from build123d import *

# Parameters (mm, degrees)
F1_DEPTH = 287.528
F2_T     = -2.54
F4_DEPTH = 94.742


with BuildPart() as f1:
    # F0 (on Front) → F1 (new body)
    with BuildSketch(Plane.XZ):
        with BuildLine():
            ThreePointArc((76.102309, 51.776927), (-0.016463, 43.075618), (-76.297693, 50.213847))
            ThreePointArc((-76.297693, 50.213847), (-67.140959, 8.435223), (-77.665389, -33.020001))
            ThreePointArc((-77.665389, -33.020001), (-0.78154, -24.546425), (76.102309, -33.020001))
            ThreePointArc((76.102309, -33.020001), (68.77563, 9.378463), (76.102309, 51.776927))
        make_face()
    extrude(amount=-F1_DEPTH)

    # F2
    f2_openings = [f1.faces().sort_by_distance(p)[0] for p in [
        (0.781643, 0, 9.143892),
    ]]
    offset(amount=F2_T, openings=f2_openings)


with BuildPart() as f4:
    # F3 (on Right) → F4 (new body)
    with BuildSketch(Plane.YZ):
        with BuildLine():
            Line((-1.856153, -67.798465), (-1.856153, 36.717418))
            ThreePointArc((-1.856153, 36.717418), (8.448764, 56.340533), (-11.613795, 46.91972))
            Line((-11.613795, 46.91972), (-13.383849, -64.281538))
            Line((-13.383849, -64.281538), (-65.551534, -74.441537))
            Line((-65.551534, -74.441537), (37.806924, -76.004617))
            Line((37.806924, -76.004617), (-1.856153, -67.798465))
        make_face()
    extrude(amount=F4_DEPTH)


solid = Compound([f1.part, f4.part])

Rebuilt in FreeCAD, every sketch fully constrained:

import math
import FreeCAD as App
import Part
import Sketcher
Q = App.Units.Quantity


def faces_at(feature, points):
    """Names of the faces that lie closest to the given points."""
    faces = feature.Shape.Faces
    near = lambda p: min(range(len(faces)), key=lambda i: faces[i].distToShape(Part.Vertex(*p))[0])
    return sorted({f"Face{near(p) + 1}" for p in points})

doc = App.newDocument("Part")
params = doc.addObject("Spreadsheet::Sheet", "Params")
for row, (alias, value) in enumerate([
    ("pad1_length", "11.32 in"),
    ("thickness_wall", "0.1 in"),
    ("pad2_length", "3.73 in"),
], start=1):
    params.set(f"A{row}", alias)
    params.set(f"B{row}", "=" + value)
    params.setAlias(f"B{row}", alias)

body = doc.addObject("PartDesign::Body", "Body")

sketch1 = body.newObject("Sketcher::SketchObject", "Sketch")
sketch1.AttachmentSupport = (doc.getObject("XZ_Plane"), [""])
sketch1.MapMode = "FlatFace"
sketch1.addGeometry(Part.ArcOfCircle(Part.Circle(App.Vector(-4, 414, 0), App.Vector(0, 0, 1), 371), math.radians(-101), math.radians(-78)), False)
sketch1.addGeometry(Part.ArcOfCircle(Part.Circle(App.Vector(-160, 10, 0), App.Vector(0, 0, 1), 93), math.radians(-28), math.radians(26)), False)
sketch1.addGeometry(Part.ArcOfCircle(Part.Circle(App.Vector(-1, -378, 0), App.Vector(0, 0, 1), 353), math.radians(77), math.radians(103)), False)
sketch1.addGeometry(Part.ArcOfCircle(Part.Circle(App.Vector(195, 9, 0), App.Vector(0, 0, 1), 126), math.radians(160), math.radians(200)), False)
sketch1.addConstraint(Sketcher.Constraint("Coincident", 0, 1, 1, 2))
sketch1.addConstraint(Sketcher.Constraint("Coincident", 1, 1, 2, 2))
sketch1.addConstraint(Sketcher.Constraint("Coincident", 2, 1, 3, 2))
sketch1.addConstraint(Sketcher.Constraint("Coincident", 3, 1, 0, 2))
sketch1.addConstraint(Sketcher.Constraint("Horizontal", 1, 1, 2, 1))
sketch1.addConstraint(Sketcher.Constraint("Vertical", 2, 1, 3, 1))
sketch1.addConstraint(Sketcher.Constraint("DistanceX", 0, 1, 2, 1, Q("6.0000001 in")))
sketch1.addConstraint(Sketcher.Constraint("DistanceY", 1, 1, -1, 1, Q("1.3 in")))
sketch1.addConstraint(Sketcher.Constraint("Radius", 0, Q("370.558256 mm")))
sketch1.addConstraint(Sketcher.Constraint("Radius", 1, Q("92.934153 mm")))
sketch1.addConstraint(Sketcher.Constraint("Radius", 2, Q("353.034405 mm")))
sketch1.addConstraint(Sketcher.Constraint("Radius", 3, Q("126.340322 mm")))
sketch1.addConstraint(Sketcher.Constraint("DistanceY", 3, 3, 0, 3, Q("15.9148001 in")))
sketch1.addConstraint(Sketcher.Constraint("DistanceX", 1, 3, 0, 3, Q("156.245699 mm")))
sketch1.addConstraint(Sketcher.Constraint("DistanceX", 1, 1, 2, 1, Q("153.767698 mm")))
sketch1.addConstraint(Sketcher.Constraint("DistanceX", 0, 3, -1, 1, Q("3.816868 mm")))
pad1 = body.newObject("PartDesign::Pad", "Pad")
pad1.Profile = sketch1
pad1.setExpression("Length", "Params.pad1_length")
pad1.Reversed = True
doc.recompute()

thickness = body.newObject("PartDesign::Thickness", "Thickness")
thickness.Base = (pad1, faces_at(pad1, [(-0.782, 0, 9.378)]))
thickness.setExpression("Value", "Params.thickness_wall")
thickness.Reversed = True
thickness.Join = "Arc"
body2 = doc.addObject("PartDesign::Body", "Body001")

sketch2 = body2.newObject("Sketcher::SketchObject", "Sketch001")
sketch2.AttachmentSupport = (doc.getObject("YZ_Plane001"), [""])
sketch2.MapMode = "FlatFace"
sketch2.addGeometry(Part.LineSegment(App.Vector(-2, -68, 0), App.Vector(-2, 37, 0)), False)
sketch2.addGeometry(Part.ArcOfCircle(Part.Circle(App.Vector(0, 48, 0), App.Vector(0, 0, 1), 12), math.radians(-99), math.radians(187)), False)
sketch2.addGeometry(Part.LineSegment(App.Vector(-12, 47, 0), App.Vector(-13, -64, 0)), False)
sketch2.addGeometry(Part.LineSegment(App.Vector(-13, -64, 0), App.Vector(-66, -74, 0)), False)
sketch2.addGeometry(Part.LineSegment(App.Vector(-66, -74, 0), App.Vector(38, -76, 0)), False)
sketch2.addGeometry(Part.LineSegment(App.Vector(38, -76, 0), App.Vector(-2, -68, 0)), False)
sketch2.addConstraint(Sketcher.Constraint("Coincident", 0, 2, 1, 1))
sketch2.addConstraint(Sketcher.Constraint("Coincident", 1, 2, 2, 1))
sketch2.addConstraint(Sketcher.Constraint("Coincident", 2, 2, 3, 1))
sketch2.addConstraint(Sketcher.Constraint("Coincident", 3, 2, 4, 1))
sketch2.addConstraint(Sketcher.Constraint("Coincident", 4, 2, 5, 1))
sketch2.addConstraint(Sketcher.Constraint("Coincident", 5, 2, 0, 1))
sketch2.addConstraint(Sketcher.Constraint("Vertical", 0))
sketch2.addConstraint(Sketcher.Constraint("PointOnObject", 1, 3, -2))
sketch2.addConstraint(Sketcher.Constraint("DistanceY", -1, 1, 1, 3, Q("1.9000001 in")))
sketch2.addConstraint(Sketcher.Constraint("DistanceY", 3, 2, 2, 2, Q("0.4 in")))
sketch2.addConstraint(Sketcher.Constraint("Radius", 1, Q("11.690876 mm")))
sketch2.addConstraint(Sketcher.Constraint("Distance", 3, Q("53.14784 mm")))
sketch2.addConstraint(Sketcher.Constraint("DistanceY", 0, 1, 0, 2, Q("104.515883 mm")))
sketch2.addConstraint(Sketcher.Constraint("DistanceY", -1, 1, 0, 2, Q("36.717418 mm")))
sketch2.addConstraint(Sketcher.Constraint("DistanceY", -1, 1, 1, 2, Q("46.91972 mm")))
sketch2.addConstraint(Sketcher.Constraint("DistanceX", 2, 2, -1, 1, Q("13.383849 mm")))
sketch2.addConstraint(Sketcher.Constraint("DistanceY", 2, 2, 1, 2, Q("111.201258 mm")))
sketch2.addConstraint(Sketcher.Constraint("DistanceY", 4, 2, 2, 2, Q("11.723079 mm")))
sketch2.addConstraint(Sketcher.Constraint("DistanceX", 3, 2, 4, 2, Q("103.358458 mm")))
pad2 = body2.newObject("PartDesign::Pad", "Pad001")
pad2.Profile = sketch2
pad2.setExpression("Length", "Params.pad2_length")

doc.recompute()
